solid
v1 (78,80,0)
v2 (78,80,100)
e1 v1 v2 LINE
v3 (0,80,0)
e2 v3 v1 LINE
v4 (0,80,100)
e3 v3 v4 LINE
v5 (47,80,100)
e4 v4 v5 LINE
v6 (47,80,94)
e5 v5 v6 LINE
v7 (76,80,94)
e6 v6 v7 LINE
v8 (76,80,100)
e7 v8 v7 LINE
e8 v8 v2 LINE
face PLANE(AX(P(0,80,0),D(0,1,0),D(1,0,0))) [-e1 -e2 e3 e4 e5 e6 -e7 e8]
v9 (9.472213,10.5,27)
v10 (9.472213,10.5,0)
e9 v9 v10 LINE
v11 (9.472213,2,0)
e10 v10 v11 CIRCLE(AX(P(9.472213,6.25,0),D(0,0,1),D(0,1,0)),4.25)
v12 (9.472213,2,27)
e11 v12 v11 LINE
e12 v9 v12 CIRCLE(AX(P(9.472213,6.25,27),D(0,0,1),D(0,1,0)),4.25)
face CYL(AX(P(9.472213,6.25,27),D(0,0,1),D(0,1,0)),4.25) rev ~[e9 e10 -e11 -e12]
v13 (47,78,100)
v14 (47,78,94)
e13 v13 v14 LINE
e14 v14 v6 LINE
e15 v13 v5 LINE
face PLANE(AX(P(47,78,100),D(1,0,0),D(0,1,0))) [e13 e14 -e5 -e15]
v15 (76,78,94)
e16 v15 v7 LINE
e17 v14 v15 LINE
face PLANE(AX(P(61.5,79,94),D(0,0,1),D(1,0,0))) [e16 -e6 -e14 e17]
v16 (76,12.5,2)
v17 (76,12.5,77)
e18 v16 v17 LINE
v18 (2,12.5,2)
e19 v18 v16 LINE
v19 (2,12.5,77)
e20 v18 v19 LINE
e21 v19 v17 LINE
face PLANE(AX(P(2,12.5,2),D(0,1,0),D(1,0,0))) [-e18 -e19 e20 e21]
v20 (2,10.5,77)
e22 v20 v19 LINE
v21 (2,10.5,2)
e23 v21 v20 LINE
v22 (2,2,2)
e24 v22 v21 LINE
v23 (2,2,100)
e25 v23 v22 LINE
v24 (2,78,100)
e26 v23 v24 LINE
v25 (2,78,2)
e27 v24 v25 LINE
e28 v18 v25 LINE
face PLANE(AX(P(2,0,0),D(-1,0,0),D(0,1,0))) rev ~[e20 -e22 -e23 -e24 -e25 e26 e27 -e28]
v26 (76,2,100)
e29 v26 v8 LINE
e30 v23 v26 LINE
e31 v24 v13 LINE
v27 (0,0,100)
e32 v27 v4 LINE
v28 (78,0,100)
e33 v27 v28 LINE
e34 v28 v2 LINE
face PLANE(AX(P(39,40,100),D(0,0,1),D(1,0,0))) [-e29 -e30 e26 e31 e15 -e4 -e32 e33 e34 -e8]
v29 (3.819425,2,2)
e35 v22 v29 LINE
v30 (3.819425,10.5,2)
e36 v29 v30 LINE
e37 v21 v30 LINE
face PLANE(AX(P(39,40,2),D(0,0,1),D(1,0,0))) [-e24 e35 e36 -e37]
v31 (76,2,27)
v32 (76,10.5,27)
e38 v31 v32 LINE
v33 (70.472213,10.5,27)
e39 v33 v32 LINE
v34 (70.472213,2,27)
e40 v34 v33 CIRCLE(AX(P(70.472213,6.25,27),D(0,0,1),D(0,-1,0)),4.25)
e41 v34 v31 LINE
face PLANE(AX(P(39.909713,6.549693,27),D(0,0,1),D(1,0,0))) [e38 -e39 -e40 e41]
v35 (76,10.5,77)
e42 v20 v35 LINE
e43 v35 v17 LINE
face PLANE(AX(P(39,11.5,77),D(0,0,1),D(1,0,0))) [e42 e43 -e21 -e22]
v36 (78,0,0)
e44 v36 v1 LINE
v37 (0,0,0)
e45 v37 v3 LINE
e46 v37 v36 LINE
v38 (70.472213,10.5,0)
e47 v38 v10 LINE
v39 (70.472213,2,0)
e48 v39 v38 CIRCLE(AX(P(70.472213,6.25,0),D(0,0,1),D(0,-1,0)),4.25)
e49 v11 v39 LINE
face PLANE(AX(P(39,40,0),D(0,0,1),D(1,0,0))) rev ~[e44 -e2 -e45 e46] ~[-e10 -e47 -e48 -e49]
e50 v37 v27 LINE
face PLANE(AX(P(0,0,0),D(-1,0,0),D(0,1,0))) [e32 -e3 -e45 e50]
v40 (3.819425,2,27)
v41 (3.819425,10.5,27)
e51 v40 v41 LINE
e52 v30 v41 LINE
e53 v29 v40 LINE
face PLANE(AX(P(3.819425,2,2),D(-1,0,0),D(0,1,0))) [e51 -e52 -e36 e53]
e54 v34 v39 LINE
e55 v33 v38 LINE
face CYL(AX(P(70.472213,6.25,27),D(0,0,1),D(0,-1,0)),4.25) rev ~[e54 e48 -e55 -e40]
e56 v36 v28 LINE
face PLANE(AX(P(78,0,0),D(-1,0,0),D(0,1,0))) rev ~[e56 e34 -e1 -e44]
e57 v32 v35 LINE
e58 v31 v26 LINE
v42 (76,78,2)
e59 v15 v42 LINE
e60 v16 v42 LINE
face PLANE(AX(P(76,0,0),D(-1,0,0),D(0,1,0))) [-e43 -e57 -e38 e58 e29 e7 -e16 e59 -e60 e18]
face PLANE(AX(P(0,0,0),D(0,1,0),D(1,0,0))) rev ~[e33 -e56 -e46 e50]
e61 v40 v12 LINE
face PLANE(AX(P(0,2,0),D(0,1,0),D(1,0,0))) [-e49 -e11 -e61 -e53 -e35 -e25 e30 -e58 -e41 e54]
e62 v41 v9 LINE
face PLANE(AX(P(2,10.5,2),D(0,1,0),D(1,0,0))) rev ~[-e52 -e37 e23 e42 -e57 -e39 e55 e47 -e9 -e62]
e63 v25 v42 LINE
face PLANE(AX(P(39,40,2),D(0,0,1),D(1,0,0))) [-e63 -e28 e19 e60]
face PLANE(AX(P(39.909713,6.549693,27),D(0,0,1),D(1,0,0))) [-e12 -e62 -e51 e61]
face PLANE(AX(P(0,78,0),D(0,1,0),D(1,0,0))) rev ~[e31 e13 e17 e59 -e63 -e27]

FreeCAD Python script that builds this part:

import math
import FreeCAD as App
import Part
import Sketcher
from FreeCAD import Vector
Q = App.Units.Quantity


def faces_at(feature, points):
    """Names of the faces that lie closest to the given points."""
    faces = feature.Shape.Faces
    near = lambda p: min(range(len(faces)), key=lambda i: faces[i].distToShape(Part.Vertex(*p))[0])
    return sorted({f"Face{near(p) + 1}" for p in points})

doc = App.newDocument("Part")
body = doc.addObject("PartDesign::Body", "Body")

sketch1 = body.newObject("Sketcher::SketchObject", "Sketch")
sketch1.AttachmentSupport = (doc.getObject("XY_Plane"), [""])
sketch1.MapMode = "FlatFace"
sketch1.addGeometry(Part.LineSegment(Vector(0, 80, 0), Vector(0, 0, 0)), False)
sketch1.addGeometry(Part.LineSegment(Vector(0, 0, 0), Vector(78, 0, 0)), False)
sketch1.addGeometry(Part.LineSegment(Vector(78, 0, 0), Vector(78, 80, 0)), False)
sketch1.addGeometry(Part.LineSegment(Vector(78, 80, 0), Vector(0, 80, 0)), False)
sketch1.addConstraint(Sketcher.Constraint("Coincident", 0, 2, 1, 1))
sketch1.addConstraint(Sketcher.Constraint("Coincident", 1, 2, 2, 1))
sketch1.addConstraint(Sketcher.Constraint("Coincident", 2, 2, 3, 1))
sketch1.addConstraint(Sketcher.Constraint("Coincident", 3, 2, 0, 1))
sketch1.addConstraint(Sketcher.Constraint("Vertical", 0))
sketch1.addConstraint(Sketcher.Constraint("Horizontal", 1))
sketch1.addConstraint(Sketcher.Constraint("Vertical", 2))
sketch1.addConstraint(Sketcher.Constraint("Horizontal", 3))
sketch1.addConstraint(Sketcher.Constraint("Coincident", 0, 2, -1, 1))
sketch1.addConstraint(Sketcher.Constraint("DistanceX", 1, 1, 1, 2, Q("78 mm")))
sketch1.addConstraint(Sketcher.Constraint("DistanceY", 0, 2, 0, 1, Q("80 mm")))
pad1 = body.newObject("PartDesign::Pad", "Pad")
pad1.Profile = sketch1
pad1.Length = 100
doc.recompute()

thickness = body.newObject("PartDesign::Thickness", "Thickness")
thickness.Base = (pad1, faces_at(pad1, [(39, 40, 100)]))
thickness.Value = 2
thickness.Reversed = True
thickness.Join = "Arc"

sketch2 = body.newObject("Sketcher::SketchObject", "Sketch001")
sketch2.AttachmentSupport = (doc.getObject("XY_Plane"), [""])
sketch2.MapMode = "FlatFace"
sketch2.AttachmentOffset = App.Placement(Vector(0, 0, 2), App.Rotation())
sketch2.addGeometry(Part.LineSegment(Vector(2, 12.5, 0), Vector(2, 10.5, 0)), False)
sketch2.addGeometry(Part.LineSegment(Vector(2, 10.5, 0), Vector(76, 10.5, 0)), False)
sketch2.addGeometry(Part.LineSegment(Vector(76, 10.5, 0), Vector(76, 12.5, 0)), False)
sketch2.addGeometry(Part.LineSegment(Vector(76, 12.5, 0), Vector(2, 12.5, 0)), False)
sketch2.addConstraint(Sketcher.Constraint("Coincident", 0, 2, 1, 1))
sketch2.addConstraint(Sketcher.Constraint("Coincident", 1, 2, 2, 1))
sketch2.addConstraint(Sketcher.Constraint("Coincident", 2, 2, 3, 1))
sketch2.addConstraint(Sketcher.Constraint("Coincident", 3, 2, 0, 1))
sketch2.addConstraint(Sketcher.Constraint("Vertical", 0))
sketch2.addConstraint(Sketcher.Constraint("Horizontal", 1))
sketch2.addConstraint(Sketcher.Constraint("Vertical", 2))
sketch2.addConstraint(Sketcher.Constraint("Horizontal", 3))
sketch2.addConstraint(Sketcher.Constraint("DistanceX", 1, 1, 1, 2, Q("74 mm")))
sketch2.addConstraint(Sketcher.Constraint("DistanceY", 0, 2, 0, 1, Q("2 mm")))
sketch2.addConstraint(Sketcher.Constraint("DistanceX", -1, 1, 0, 2, Q("2 mm")))
sketch2.addConstraint(Sketcher.Constraint("DistanceY", -1, 1, 0, 2, Q("10.5 mm")))
pad2 = body.newObject("PartDesign::Pad", "Pad001")
pad2.Profile = sketch2
pad2.Length = 75

sketch3 = body.newObject("Sketcher::SketchObject", "Sketch002")
sketch3.AttachmentSupport = (doc.getObject("XY_Plane"), [""])
sketch3.MapMode = "FlatFace"
sketch3.AttachmentOffset = App.Placement(Vector(0, 0, 2), App.Rotation())
sketch3.addGeometry(Part.LineSegment(Vector(4, 11, 0), Vector(4, 2, 0)), False)
sketch3.addGeometry(Part.LineSegment(Vector(4, 2, 0), Vector(76, 2, 0)), False)
sketch3.addGeometry(Part.LineSegment(Vector(76, 2, 0), Vector(76, 11, 0)), False)
sketch3.addGeometry(Part.LineSegment(Vector(76, 11, 0), Vector(4, 11, 0)), False)
sketch3.addConstraint(Sketcher.Constraint("Coincident", 0, 2, 1, 1))
sketch3.addConstraint(Sketcher.Constraint("Coincident", 1, 2, 2, 1))
sketch3.addConstraint(Sketcher.Constraint("Coincident", 2, 2, 3, 1))
sketch3.addConstraint(Sketcher.Constraint("Coincident", 3, 2, 0, 1))
sketch3.addConstraint(Sketcher.Constraint("Vertical", 0))
sketch3.addConstraint(Sketcher.Constraint("Horizontal", 1))
sketch3.addConstraint(Sketcher.Constraint("Vertical", 2))
sketch3.addConstraint(Sketcher.Constraint("Horizontal", 3))
sketch3.addConstraint(Sketcher.Constraint("DistanceY", -1, 1, 0, 2, Q("2 mm")))
sketch3.addConstraint(Sketcher.Constraint("DistanceX", -1, 1, 1, 2, Q("76 mm")))
sketch3.addConstraint(Sketcher.Constraint("DistanceX", 1, 1, 1, 2, Q("72.180575 mm")))
sketch3.addConstraint(Sketcher.Constraint("DistanceY", 0, 2, 0, 1, Q("9.099385 mm")))
pad3 = body.newObject("PartDesign::Pad", "Pad002")
pad3.Profile = sketch3
pad3.Length = 25

sketch4 = body.newObject("Sketcher::SketchObject", "Sketch003")
sketch4.AttachmentSupport = (doc.getObject("XY_Plane"), [""])
sketch4.MapMode = "FlatFace"
sketch4.AttachmentOffset = App.Placement(Vector(0, 0, 27), App.Rotation())
sketch4.addGeometry(Part.LineSegment(Vector(70.5, 10.5, 0), Vector(9.5, 10.5, 0)), False)
sketch4.addGeometry(Part.ArcOfCircle(Part.Circle(Vector(9.5, 6.2, 0), Vector(0, 0, 1), 4.2), math.radians(90), math.radians(270)), False)
sketch4.addGeometry(Part.LineSegment(Vector(9.5, 2, 0), Vector(70.5, 2, 0)), False)
sketch4.addGeometry(Part.ArcOfCircle(Part.Circle(Vector(70.5, 6.2, 0), Vector(0, 0, 1), 4.2), math.radians(-90), math.radians(90)), False)
sketch4.addConstraint(Sketcher.Constraint("Tangent", 0, 2, 1, 1))
sketch4.addConstraint(Sketcher.Constraint("Tangent", 1, 2, 2, 1))
sketch4.addConstraint(Sketcher.Constraint("Tangent", 2, 2, 3, 1))
sketch4.addConstraint(Sketcher.Constraint("Tangent", 3, 2, 0, 1))
sketch4.addConstraint(Sketcher.Constraint("Horizontal", 0))
sketch4.addConstraint(Sketcher.Constraint("Horizontal", 2))
sketch4.addConstraint(Sketcher.Constraint("DistanceX", 0, 2, 0, 1, Q("61 mm")))
sketch4.addConstraint(Sketcher.Constraint("Radius", 1, Q("4.25 mm")))
sketch4.addConstraint(Sketcher.Constraint("DistanceY", -1, 1, 1, 2, Q("2 mm")))
sketch4.addConstraint(Sketcher.Constraint("DistanceX", -1, 1, 1, 3, Q("9.472213 mm")))
pocket1 = body.newObject("PartDesign::Pocket", "Pocket")
pocket1.Profile = sketch4
pocket1.Length = 38.5

sketch5 = body.newObject("Sketcher::SketchObject", "Sketch004")
sketch5.AttachmentSupport = (doc.getObject("XY_Plane"), [""])
sketch5.MapMode = "FlatFace"
sketch5.AttachmentOffset = App.Placement(Vector(0, 0, 100), App.Rotation())
sketch5.addGeometry(Part.LineSegment(Vector(47, 80, 0), Vector(47, 78, 0)), False)
sketch5.addGeometry(Part.LineSegment(Vector(47, 78, 0), Vector(76, 78, 0)), False)
sketch5.addGeometry(Part.LineSegment(Vector(76, 78, 0), Vector(76, 80, 0)), False)
sketch5.addGeometry(Part.LineSegment(Vector(76, 80, 0), Vector(47, 80, 0)), False)
sketch5.addConstraint(Sketcher.Constraint("Coincident", 0, 2, 1, 1))
sketch5.addConstraint(Sketcher.Constraint("Coincident", 1, 2, 2, 1))
sketch5.addConstraint(Sketcher.Constraint("Coincident", 2, 2, 3, 1))
sketch5.addConstraint(Sketcher.Constraint("Coincident", 3, 2, 0, 1))
sketch5.addConstraint(Sketcher.Constraint("Vertical", 0))
sketch5.addConstraint(Sketcher.Constraint("Horizontal", 1))
sketch5.addConstraint(Sketcher.Constraint("Vertical", 2))
sketch5.addConstraint(Sketcher.Constraint("Horizontal", 3))
sketch5.addConstraint(Sketcher.Constraint("DistanceX", 1, 1, 1, 2, Q("29 mm")))
sketch5.addConstraint(Sketcher.Constraint("DistanceY", 0, 2, 0, 1, Q("2 mm")))
sketch5.addConstraint(Sketcher.Constraint("DistanceX", -1, 1, 0, 2, Q("47 mm")))
sketch5.addConstraint(Sketcher.Constraint("DistanceY", -1, 1, 0, 2, Q("78 mm")))
pocket2 = body.newObject("PartDesign::Pocket", "Pocket001")
pocket2.Profile = sketch5
pocket2.Length = 6

doc.recompute()
